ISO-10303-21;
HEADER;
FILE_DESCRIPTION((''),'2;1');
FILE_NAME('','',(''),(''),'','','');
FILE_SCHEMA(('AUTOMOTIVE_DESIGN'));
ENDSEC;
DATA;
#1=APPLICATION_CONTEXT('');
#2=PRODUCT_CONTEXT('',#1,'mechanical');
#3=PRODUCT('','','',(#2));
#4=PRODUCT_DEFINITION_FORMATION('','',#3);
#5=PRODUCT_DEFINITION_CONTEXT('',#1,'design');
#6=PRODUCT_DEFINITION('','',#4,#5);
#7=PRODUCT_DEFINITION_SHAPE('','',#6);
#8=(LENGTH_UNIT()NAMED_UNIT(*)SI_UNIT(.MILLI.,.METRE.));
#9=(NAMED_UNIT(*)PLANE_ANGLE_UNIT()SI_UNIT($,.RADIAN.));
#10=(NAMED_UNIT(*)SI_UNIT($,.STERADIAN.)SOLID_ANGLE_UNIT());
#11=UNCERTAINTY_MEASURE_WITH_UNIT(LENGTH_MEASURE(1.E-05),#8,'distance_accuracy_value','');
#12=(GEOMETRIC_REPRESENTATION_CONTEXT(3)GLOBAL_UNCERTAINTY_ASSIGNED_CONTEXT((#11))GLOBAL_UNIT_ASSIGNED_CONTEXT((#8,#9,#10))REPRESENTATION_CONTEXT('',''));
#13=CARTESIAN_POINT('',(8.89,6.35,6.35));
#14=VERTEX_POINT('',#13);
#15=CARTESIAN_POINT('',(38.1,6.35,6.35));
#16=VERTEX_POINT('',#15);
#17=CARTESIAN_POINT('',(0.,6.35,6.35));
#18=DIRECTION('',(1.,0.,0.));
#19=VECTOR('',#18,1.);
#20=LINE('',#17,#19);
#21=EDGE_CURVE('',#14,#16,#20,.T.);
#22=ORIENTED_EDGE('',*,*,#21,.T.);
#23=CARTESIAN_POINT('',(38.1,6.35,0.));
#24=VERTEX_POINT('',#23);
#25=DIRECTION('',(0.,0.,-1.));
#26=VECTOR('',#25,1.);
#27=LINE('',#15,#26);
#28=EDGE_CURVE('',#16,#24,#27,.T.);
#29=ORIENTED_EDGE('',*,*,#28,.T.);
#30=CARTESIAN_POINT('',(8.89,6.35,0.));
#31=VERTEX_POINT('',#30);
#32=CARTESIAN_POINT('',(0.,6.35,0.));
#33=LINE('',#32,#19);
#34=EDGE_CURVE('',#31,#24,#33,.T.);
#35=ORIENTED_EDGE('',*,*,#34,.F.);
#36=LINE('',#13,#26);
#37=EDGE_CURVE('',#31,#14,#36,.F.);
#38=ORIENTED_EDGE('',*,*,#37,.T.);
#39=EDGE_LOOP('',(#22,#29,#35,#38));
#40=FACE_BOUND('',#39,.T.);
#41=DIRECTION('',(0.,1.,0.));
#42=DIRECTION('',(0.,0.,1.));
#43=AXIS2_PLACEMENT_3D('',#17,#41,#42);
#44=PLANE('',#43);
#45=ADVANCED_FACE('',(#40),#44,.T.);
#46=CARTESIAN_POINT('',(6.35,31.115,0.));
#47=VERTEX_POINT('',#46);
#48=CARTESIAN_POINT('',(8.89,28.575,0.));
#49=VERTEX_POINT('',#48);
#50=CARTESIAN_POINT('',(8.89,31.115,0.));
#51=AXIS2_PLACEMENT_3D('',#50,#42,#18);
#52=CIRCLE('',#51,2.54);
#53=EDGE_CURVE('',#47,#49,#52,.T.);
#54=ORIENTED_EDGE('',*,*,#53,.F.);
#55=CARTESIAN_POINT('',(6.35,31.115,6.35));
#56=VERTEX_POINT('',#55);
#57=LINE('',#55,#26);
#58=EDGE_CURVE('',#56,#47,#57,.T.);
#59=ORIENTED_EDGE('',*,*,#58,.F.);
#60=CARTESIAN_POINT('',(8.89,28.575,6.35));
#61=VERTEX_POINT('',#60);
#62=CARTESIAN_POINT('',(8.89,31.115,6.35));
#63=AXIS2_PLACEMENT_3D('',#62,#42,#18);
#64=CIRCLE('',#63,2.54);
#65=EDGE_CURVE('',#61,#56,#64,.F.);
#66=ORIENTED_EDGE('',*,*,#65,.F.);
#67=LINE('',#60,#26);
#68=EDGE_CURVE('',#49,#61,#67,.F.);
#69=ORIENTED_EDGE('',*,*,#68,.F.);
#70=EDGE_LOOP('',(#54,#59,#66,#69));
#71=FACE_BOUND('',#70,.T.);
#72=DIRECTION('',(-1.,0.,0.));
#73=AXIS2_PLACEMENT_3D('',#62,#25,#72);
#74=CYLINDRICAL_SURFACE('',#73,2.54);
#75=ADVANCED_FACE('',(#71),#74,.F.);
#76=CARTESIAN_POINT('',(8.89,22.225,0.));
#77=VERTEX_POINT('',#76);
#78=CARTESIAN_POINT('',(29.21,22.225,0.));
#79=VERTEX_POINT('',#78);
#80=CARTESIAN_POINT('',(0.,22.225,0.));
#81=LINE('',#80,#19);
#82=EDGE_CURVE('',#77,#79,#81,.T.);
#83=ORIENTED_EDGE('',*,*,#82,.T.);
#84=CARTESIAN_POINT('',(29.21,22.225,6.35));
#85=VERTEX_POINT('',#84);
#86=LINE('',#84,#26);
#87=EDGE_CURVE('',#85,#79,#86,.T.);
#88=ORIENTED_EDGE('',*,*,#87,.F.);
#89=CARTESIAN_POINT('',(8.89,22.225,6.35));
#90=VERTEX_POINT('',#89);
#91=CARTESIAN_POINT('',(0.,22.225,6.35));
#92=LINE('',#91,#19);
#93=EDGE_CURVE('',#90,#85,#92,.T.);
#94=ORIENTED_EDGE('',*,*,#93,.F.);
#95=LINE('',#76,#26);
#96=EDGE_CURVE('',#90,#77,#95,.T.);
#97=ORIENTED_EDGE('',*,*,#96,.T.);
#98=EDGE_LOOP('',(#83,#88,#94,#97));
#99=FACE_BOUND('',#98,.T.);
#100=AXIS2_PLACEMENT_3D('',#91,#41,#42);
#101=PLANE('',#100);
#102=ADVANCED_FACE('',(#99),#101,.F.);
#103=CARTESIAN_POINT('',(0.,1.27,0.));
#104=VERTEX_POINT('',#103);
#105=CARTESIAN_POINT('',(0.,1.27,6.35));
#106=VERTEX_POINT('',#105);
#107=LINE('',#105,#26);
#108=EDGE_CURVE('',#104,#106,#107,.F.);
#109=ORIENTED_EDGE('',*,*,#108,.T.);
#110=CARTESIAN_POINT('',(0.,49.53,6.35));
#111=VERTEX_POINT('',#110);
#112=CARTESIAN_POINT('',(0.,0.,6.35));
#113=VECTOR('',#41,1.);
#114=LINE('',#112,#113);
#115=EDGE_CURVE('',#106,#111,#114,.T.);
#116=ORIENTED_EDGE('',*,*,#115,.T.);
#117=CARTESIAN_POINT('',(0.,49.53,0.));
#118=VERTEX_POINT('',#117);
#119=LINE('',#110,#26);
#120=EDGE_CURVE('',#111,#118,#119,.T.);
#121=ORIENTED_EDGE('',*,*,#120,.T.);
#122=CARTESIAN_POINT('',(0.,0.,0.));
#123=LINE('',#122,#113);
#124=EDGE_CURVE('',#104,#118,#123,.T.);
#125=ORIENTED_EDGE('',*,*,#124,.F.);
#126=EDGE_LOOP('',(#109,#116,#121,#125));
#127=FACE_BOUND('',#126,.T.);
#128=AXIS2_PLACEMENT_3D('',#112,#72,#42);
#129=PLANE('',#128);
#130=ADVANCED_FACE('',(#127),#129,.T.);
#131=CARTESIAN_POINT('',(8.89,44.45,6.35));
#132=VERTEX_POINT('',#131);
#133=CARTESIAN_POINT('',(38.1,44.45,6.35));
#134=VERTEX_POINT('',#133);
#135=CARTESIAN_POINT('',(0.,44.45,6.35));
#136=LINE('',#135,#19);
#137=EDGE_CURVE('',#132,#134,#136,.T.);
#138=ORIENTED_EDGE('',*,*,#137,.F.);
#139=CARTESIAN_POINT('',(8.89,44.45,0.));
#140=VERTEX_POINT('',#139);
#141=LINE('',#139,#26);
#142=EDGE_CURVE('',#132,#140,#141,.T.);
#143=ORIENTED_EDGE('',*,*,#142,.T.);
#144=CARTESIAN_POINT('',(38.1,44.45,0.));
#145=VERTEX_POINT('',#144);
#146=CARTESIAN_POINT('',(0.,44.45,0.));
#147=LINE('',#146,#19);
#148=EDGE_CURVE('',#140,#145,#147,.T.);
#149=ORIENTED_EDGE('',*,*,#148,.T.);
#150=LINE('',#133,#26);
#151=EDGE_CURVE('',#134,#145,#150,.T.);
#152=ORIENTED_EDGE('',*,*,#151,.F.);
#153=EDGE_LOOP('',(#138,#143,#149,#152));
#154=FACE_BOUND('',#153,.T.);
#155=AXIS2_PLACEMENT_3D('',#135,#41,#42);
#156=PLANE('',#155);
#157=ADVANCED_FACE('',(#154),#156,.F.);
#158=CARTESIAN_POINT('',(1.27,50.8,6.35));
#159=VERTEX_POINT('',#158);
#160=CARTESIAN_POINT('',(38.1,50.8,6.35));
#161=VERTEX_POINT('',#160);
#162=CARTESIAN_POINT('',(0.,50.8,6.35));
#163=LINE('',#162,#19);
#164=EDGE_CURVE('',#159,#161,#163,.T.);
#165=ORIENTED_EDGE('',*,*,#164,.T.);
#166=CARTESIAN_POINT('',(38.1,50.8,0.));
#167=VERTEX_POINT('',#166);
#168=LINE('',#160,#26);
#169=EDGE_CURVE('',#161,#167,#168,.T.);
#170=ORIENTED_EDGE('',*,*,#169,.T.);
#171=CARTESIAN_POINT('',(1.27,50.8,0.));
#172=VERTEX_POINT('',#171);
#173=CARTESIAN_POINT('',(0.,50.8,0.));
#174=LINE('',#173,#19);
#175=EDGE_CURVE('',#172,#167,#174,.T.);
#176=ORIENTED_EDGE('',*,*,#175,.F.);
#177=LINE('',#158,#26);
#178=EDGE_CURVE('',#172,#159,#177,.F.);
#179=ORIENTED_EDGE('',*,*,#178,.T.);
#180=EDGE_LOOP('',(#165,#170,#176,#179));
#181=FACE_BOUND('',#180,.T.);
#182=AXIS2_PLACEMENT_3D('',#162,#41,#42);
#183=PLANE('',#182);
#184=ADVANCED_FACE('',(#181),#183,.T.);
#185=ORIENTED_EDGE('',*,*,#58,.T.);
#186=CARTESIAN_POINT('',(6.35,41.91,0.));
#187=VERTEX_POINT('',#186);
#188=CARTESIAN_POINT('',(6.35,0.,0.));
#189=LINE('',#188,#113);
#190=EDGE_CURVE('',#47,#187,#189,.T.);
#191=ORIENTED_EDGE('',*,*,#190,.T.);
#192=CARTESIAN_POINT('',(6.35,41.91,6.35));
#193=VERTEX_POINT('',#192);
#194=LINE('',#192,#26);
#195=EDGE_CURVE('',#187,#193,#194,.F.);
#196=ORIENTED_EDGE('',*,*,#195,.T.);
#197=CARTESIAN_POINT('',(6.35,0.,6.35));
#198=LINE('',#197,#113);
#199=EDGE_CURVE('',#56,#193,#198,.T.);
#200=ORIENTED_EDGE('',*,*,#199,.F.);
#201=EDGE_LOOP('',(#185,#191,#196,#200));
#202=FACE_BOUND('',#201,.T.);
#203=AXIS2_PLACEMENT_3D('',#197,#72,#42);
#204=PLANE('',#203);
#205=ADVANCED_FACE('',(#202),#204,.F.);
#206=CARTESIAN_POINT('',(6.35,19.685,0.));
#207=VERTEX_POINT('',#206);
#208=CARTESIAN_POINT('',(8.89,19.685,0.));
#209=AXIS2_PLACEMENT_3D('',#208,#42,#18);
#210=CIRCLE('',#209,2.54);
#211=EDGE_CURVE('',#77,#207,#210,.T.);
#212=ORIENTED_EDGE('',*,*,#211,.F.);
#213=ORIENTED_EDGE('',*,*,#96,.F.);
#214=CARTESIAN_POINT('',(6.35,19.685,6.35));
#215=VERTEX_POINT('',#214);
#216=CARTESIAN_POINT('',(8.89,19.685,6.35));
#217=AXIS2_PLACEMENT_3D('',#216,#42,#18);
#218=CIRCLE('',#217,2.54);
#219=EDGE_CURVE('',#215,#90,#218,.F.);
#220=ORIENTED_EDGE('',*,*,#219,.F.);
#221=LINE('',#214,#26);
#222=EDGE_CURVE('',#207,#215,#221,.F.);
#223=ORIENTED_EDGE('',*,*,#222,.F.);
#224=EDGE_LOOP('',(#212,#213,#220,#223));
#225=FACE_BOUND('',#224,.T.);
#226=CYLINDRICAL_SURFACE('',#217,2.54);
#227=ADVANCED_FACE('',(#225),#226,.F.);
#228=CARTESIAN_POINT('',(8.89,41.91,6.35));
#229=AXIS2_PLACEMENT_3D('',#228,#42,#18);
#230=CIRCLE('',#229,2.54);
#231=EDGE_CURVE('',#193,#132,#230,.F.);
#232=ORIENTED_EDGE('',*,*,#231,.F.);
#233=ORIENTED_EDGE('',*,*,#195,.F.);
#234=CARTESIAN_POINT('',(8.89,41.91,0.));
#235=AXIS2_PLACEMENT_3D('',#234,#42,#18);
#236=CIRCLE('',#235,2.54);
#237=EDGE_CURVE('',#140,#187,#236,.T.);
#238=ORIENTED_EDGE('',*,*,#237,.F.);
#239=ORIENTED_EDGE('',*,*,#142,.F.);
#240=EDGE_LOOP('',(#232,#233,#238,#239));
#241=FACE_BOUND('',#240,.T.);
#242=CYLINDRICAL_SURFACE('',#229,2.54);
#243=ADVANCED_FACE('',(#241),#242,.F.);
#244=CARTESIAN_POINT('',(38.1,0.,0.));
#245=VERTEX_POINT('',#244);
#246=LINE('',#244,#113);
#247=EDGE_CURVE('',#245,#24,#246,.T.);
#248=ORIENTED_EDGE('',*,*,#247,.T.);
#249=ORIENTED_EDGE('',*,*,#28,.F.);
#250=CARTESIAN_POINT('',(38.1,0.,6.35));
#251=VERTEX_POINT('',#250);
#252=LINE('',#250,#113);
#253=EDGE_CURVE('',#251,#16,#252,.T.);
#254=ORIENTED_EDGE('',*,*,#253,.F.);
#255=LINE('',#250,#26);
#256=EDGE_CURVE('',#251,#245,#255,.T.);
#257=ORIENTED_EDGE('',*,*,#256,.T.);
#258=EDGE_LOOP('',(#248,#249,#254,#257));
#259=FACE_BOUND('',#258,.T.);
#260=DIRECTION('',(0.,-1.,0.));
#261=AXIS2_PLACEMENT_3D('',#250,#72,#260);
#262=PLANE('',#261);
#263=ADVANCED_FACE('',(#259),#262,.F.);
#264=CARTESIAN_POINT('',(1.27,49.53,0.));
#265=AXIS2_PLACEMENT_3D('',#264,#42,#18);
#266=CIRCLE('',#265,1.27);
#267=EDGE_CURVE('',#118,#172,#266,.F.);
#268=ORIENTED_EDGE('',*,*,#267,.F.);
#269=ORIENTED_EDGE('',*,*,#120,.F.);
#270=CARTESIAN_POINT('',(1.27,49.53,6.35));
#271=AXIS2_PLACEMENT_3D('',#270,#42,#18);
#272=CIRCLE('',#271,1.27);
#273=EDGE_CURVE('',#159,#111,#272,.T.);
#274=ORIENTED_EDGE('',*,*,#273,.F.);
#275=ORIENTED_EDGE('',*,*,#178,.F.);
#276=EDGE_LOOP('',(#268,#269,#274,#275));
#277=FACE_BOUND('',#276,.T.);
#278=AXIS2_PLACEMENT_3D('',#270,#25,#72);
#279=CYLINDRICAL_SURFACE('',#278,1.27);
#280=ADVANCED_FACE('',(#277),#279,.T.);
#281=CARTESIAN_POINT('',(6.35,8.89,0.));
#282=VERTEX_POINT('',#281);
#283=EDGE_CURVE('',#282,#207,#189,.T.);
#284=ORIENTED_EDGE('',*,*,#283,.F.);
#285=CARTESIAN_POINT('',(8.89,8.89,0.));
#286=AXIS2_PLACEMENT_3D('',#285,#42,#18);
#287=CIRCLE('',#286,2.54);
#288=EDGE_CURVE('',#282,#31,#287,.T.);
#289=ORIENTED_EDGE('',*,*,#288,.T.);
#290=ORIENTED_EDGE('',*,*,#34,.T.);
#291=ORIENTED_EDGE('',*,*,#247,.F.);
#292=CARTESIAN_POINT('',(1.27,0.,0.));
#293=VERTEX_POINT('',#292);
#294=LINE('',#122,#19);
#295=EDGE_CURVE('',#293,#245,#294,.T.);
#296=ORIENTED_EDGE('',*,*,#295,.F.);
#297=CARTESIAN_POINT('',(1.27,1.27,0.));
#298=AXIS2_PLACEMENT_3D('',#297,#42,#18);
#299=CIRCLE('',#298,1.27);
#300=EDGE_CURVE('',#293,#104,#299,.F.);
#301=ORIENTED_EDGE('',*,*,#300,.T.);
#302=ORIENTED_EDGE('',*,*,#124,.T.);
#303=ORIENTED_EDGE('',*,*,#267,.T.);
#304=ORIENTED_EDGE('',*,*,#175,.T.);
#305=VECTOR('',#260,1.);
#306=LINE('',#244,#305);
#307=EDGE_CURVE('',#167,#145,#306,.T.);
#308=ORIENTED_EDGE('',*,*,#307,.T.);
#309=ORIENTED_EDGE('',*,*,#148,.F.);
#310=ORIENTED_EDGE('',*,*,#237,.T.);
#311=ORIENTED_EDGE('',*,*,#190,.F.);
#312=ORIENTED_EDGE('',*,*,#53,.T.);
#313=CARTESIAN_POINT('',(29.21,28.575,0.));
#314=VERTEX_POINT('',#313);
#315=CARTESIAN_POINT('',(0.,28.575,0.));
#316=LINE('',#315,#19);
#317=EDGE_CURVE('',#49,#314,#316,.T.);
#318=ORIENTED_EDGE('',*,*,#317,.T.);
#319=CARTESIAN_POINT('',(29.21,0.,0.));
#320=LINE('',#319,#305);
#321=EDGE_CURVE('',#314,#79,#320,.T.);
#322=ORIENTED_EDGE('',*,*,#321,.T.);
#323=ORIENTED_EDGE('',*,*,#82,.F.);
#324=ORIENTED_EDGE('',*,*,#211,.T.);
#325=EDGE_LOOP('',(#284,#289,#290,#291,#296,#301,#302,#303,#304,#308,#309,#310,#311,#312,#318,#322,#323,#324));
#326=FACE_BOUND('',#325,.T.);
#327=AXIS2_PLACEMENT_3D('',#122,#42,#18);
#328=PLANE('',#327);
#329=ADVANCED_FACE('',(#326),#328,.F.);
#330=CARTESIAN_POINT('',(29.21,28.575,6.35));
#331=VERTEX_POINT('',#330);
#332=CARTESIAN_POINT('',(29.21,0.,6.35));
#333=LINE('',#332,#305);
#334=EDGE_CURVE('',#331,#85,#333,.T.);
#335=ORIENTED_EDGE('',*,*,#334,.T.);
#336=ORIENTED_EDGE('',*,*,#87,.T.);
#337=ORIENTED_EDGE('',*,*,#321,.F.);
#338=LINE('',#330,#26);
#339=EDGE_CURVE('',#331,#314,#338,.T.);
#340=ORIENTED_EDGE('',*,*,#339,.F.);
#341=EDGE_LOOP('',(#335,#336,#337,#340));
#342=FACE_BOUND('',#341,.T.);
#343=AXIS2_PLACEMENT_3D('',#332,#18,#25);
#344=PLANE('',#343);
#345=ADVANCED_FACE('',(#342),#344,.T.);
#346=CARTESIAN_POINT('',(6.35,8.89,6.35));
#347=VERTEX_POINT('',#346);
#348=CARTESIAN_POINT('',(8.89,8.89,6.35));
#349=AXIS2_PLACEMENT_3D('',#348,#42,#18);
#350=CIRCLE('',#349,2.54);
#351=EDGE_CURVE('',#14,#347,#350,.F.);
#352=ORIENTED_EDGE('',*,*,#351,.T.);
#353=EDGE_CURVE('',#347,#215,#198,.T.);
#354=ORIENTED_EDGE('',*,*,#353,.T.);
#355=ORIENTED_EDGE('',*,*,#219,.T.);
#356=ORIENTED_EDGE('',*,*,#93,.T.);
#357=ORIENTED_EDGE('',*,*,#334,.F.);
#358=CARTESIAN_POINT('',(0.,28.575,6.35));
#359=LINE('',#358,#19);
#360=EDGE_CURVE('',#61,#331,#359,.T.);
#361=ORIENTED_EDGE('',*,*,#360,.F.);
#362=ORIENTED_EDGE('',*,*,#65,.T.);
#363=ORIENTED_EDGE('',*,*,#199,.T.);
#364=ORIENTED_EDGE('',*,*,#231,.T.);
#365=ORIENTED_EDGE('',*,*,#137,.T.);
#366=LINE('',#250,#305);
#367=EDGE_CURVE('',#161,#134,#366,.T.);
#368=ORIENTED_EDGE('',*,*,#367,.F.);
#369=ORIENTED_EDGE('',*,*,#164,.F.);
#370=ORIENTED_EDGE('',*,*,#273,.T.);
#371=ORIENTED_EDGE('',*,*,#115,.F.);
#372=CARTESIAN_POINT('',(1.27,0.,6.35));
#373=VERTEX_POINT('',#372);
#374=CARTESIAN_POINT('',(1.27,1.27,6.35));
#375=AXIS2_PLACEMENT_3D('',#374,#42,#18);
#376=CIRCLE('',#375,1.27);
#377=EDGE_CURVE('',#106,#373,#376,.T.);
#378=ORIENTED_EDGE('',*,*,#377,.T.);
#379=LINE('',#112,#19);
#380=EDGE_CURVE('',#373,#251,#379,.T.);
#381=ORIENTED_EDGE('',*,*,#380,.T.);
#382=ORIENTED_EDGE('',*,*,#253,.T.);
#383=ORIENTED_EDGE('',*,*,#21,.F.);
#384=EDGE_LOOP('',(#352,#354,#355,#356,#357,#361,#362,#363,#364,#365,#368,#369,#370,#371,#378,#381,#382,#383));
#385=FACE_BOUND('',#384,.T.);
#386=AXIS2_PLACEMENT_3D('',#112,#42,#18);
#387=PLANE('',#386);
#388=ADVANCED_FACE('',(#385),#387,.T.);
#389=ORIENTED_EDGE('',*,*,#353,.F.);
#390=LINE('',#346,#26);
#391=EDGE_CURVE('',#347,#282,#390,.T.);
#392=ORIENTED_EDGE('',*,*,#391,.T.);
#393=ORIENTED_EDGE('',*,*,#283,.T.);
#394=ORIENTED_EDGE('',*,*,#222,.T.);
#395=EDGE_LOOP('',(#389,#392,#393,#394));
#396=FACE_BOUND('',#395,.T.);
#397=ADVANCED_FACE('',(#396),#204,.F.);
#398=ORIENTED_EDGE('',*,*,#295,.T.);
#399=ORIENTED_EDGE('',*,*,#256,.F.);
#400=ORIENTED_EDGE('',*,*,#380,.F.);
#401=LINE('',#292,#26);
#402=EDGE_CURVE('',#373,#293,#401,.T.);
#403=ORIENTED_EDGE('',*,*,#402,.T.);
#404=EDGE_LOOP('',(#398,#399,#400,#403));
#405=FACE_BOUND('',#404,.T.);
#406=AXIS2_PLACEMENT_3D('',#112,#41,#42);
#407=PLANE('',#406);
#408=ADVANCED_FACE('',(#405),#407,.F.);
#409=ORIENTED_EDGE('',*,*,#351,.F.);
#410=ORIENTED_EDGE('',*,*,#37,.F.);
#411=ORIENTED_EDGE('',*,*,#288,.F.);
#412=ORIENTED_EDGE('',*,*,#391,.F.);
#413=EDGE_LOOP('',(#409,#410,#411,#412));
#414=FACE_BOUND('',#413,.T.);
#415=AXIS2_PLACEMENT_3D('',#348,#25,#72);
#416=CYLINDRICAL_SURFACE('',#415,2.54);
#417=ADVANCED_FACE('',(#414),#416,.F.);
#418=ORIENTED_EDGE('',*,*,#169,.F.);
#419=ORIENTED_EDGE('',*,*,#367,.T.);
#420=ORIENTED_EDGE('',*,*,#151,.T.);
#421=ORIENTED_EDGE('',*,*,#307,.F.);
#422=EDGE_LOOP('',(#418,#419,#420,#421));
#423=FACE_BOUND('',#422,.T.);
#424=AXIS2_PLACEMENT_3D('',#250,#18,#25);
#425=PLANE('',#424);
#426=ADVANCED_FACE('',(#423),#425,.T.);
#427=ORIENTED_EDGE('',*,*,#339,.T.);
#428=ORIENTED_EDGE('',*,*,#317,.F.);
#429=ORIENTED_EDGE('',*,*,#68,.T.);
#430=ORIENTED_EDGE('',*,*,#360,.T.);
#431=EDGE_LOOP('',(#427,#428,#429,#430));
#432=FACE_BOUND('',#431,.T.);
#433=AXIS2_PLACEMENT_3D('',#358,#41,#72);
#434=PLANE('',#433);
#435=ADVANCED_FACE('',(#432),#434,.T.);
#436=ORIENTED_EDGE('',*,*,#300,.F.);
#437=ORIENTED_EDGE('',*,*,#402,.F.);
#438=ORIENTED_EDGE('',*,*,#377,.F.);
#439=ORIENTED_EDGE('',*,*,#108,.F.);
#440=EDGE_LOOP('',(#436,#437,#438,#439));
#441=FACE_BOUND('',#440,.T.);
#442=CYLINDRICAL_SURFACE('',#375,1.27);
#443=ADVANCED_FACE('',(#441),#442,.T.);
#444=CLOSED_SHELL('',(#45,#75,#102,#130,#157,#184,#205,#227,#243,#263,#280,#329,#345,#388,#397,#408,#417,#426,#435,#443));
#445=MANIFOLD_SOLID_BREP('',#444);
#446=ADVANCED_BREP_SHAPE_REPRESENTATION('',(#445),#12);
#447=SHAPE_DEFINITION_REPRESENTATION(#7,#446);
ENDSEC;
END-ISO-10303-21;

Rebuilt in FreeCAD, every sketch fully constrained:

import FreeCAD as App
import Part
import Sketcher
Q = App.Units.Quantity


def edges_at(feature, points):
    """Names of the edges that pass closest to the given points."""
    edges = feature.Shape.Edges
    near = lambda p: min(range(len(edges)), key=lambda i: edges[i].distToShape(Part.Vertex(*p))[0])
    return sorted({f"Edge{near(p) + 1}" for p in points})

doc = App.newDocument("Part")
body = doc.addObject("PartDesign::Body", "Body")

sketch1 = body.newObject("Sketcher::SketchObject", "Sketch")
sketch1.AttachmentSupport = (doc.getObject("XY_Plane"), [""])
sketch1.MapMode = "FlatFace"
sketch1.addGeometry(Part.LineSegment(App.Vector(6, 44, 0), App.Vector(38, 44, 0)), False)
sketch1.addGeometry(Part.LineSegment(App.Vector(38, 44, 0), App.Vector(38, 51, 0)), False)
sketch1.addGeometry(Part.LineSegment(App.Vector(38, 51, 0), App.Vector(0, 51, 0)), False)
sketch1.addGeometry(Part.LineSegment(App.Vector(0, 51, 0), App.Vector(0, 0, 0)), False)
sketch1.addGeometry(Part.LineSegment(App.Vector(0, 0, 0), App.Vector(38, 0, 0)), False)
sketch1.addGeometry(Part.LineSegment(App.Vector(38, 0, 0), App.Vector(38, 6, 0)), False)
sketch1.addGeometry(Part.LineSegment(App.Vector(38, 6, 0), App.Vector(6, 6, 0)), False)
sketch1.addGeometry(Part.LineSegment(App.Vector(6, 6, 0), App.Vector(6, 22, 0)), False)
sketch1.addGeometry(Part.LineSegment(App.Vector(6, 22, 0), App.Vector(29, 22, 0)), False)
sketch1.addGeometry(Part.LineSegment(App.Vector(29, 22, 0), App.Vector(29, 29, 0)), False)
sketch1.addGeometry(Part.LineSegment(App.Vector(29, 29, 0), App.Vector(6, 29, 0)), False)
sketch1.addGeometry(Part.LineSegment(App.Vector(6, 29, 0), App.Vector(6, 44, 0)), False)
sketch1.addConstraint(Sketcher.Constraint("Coincident", 0, 2, 1, 1))
sketch1.addConstraint(Sketcher.Constraint("Coincident", 1, 2, 2, 1))
sketch1.addConstraint(Sketcher.Constraint("Coincident", 2, 2, 3, 1))
sketch1.addConstraint(Sketcher.Constraint("Coincident", 3, 2, 4, 1))
sketch1.addConstraint(Sketcher.Constraint("Coincident", 4, 2, 5, 1))
sketch1.addConstraint(Sketcher.Constraint("Coincident", 5, 2, 6, 1))
sketch1.addConstraint(Sketcher.Constraint("Coincident", 6, 2, 7, 1))
sketch1.addConstraint(Sketcher.Constraint("Coincident", 7, 2, 8, 1))
sketch1.addConstraint(Sketcher.Constraint("Coincident", 8, 2, 9, 1))
sketch1.addConstraint(Sketcher.Constraint("Coincident", 9, 2, 10, 1))
sketch1.addConstraint(Sketcher.Constraint("Coincident", 10, 2, 11, 1))
sketch1.addConstraint(Sketcher.Constraint("Coincident", 11, 2, 0, 1))
sketch1.addConstraint(Sketcher.Constraint("Horizontal", 0))
sketch1.addConstraint(Sketcher.Constraint("Vertical", 1))
sketch1.addConstraint(Sketcher.Constraint("Horizontal", 2))
sketch1.addConstraint(Sketcher.Constraint("Vertical", 3))
sketch1.addConstraint(Sketcher.Constraint("Horizontal", 4))
sketch1.addConstraint(Sketcher.Constraint("Vertical", 5))
sketch1.addConstraint(Sketcher.Constraint("Horizontal", 6))
sketch1.addConstraint(Sketcher.Constraint("Vertical", 7))
sketch1.addConstraint(Sketcher.Constraint("Horizontal", 8))
sketch1.addConstraint(Sketcher.Constraint("Vertical", 9))
sketch1.addConstraint(Sketcher.Constraint("Horizontal", 10))
sketch1.addConstraint(Sketcher.Constraint("Vertical", 11))
sketch1.addConstraint(Sketcher.Constraint("Coincident", 3, 2, -1, 1))
sketch1.addConstraint(Sketcher.Constraint("Vertical", 1, 2, 4, 2))
sketch1.addConstraint(Sketcher.Constraint("Vertical", 7, 2, 10, 2))
sketch1.addConstraint(Sketcher.Constraint("Equal", 1, 5))
sketch1.addConstraint(Sketcher.Constraint("Equal", 5, 9))
sketch1.addConstraint(Sketcher.Constraint("Equal", 7, 11))
sketch1.addConstraint(Sketcher.Constraint("DistanceY", 3, 2, 3, 1, Q("2 in")))
sketch1.addConstraint(Sketcher.Constraint("DistanceX", 2, 2, 2, 1, Q("1.5 in")))
sketch1.addConstraint(Sketcher.Constraint("DistanceX", 8, 1, 8, 2, Q("0.9 in")))
sketch1.addConstraint(Sketcher.Constraint("DistanceX", 0, 1, 0, 2, Q("1.25 in")))
sketch1.addConstraint(Sketcher.Constraint("DistanceY", 1, 1, 1, 2, Q("0.25 in")))
pad1 = body.newObject("PartDesign::Pad", "Pad")
pad1.Profile = sketch1
pad1.Length = Q("0.25 in")
doc.recompute()

fillet = body.newObject("PartDesign::Fillet", "Fillet")
fillet.Base = (pad1, edges_at(pad1, [
    (6.35, 44.45, 3.175),
    (6.35, 28.575, 3.175),
    (6.35, 22.225, 3.175),
    (6.35, 6.35, 3.175),
]))
fillet.Radius = Q("0.1 in")
doc.recompute()

fillet2 = body.newObject("PartDesign::Fillet", "Fillet001")
fillet2.Base = (fillet, edges_at(fillet, [(0, 0, 3.175), (0, 50.8, 3.175)]))
fillet2.Radius = Q("0.05 in")

doc.recompute()
